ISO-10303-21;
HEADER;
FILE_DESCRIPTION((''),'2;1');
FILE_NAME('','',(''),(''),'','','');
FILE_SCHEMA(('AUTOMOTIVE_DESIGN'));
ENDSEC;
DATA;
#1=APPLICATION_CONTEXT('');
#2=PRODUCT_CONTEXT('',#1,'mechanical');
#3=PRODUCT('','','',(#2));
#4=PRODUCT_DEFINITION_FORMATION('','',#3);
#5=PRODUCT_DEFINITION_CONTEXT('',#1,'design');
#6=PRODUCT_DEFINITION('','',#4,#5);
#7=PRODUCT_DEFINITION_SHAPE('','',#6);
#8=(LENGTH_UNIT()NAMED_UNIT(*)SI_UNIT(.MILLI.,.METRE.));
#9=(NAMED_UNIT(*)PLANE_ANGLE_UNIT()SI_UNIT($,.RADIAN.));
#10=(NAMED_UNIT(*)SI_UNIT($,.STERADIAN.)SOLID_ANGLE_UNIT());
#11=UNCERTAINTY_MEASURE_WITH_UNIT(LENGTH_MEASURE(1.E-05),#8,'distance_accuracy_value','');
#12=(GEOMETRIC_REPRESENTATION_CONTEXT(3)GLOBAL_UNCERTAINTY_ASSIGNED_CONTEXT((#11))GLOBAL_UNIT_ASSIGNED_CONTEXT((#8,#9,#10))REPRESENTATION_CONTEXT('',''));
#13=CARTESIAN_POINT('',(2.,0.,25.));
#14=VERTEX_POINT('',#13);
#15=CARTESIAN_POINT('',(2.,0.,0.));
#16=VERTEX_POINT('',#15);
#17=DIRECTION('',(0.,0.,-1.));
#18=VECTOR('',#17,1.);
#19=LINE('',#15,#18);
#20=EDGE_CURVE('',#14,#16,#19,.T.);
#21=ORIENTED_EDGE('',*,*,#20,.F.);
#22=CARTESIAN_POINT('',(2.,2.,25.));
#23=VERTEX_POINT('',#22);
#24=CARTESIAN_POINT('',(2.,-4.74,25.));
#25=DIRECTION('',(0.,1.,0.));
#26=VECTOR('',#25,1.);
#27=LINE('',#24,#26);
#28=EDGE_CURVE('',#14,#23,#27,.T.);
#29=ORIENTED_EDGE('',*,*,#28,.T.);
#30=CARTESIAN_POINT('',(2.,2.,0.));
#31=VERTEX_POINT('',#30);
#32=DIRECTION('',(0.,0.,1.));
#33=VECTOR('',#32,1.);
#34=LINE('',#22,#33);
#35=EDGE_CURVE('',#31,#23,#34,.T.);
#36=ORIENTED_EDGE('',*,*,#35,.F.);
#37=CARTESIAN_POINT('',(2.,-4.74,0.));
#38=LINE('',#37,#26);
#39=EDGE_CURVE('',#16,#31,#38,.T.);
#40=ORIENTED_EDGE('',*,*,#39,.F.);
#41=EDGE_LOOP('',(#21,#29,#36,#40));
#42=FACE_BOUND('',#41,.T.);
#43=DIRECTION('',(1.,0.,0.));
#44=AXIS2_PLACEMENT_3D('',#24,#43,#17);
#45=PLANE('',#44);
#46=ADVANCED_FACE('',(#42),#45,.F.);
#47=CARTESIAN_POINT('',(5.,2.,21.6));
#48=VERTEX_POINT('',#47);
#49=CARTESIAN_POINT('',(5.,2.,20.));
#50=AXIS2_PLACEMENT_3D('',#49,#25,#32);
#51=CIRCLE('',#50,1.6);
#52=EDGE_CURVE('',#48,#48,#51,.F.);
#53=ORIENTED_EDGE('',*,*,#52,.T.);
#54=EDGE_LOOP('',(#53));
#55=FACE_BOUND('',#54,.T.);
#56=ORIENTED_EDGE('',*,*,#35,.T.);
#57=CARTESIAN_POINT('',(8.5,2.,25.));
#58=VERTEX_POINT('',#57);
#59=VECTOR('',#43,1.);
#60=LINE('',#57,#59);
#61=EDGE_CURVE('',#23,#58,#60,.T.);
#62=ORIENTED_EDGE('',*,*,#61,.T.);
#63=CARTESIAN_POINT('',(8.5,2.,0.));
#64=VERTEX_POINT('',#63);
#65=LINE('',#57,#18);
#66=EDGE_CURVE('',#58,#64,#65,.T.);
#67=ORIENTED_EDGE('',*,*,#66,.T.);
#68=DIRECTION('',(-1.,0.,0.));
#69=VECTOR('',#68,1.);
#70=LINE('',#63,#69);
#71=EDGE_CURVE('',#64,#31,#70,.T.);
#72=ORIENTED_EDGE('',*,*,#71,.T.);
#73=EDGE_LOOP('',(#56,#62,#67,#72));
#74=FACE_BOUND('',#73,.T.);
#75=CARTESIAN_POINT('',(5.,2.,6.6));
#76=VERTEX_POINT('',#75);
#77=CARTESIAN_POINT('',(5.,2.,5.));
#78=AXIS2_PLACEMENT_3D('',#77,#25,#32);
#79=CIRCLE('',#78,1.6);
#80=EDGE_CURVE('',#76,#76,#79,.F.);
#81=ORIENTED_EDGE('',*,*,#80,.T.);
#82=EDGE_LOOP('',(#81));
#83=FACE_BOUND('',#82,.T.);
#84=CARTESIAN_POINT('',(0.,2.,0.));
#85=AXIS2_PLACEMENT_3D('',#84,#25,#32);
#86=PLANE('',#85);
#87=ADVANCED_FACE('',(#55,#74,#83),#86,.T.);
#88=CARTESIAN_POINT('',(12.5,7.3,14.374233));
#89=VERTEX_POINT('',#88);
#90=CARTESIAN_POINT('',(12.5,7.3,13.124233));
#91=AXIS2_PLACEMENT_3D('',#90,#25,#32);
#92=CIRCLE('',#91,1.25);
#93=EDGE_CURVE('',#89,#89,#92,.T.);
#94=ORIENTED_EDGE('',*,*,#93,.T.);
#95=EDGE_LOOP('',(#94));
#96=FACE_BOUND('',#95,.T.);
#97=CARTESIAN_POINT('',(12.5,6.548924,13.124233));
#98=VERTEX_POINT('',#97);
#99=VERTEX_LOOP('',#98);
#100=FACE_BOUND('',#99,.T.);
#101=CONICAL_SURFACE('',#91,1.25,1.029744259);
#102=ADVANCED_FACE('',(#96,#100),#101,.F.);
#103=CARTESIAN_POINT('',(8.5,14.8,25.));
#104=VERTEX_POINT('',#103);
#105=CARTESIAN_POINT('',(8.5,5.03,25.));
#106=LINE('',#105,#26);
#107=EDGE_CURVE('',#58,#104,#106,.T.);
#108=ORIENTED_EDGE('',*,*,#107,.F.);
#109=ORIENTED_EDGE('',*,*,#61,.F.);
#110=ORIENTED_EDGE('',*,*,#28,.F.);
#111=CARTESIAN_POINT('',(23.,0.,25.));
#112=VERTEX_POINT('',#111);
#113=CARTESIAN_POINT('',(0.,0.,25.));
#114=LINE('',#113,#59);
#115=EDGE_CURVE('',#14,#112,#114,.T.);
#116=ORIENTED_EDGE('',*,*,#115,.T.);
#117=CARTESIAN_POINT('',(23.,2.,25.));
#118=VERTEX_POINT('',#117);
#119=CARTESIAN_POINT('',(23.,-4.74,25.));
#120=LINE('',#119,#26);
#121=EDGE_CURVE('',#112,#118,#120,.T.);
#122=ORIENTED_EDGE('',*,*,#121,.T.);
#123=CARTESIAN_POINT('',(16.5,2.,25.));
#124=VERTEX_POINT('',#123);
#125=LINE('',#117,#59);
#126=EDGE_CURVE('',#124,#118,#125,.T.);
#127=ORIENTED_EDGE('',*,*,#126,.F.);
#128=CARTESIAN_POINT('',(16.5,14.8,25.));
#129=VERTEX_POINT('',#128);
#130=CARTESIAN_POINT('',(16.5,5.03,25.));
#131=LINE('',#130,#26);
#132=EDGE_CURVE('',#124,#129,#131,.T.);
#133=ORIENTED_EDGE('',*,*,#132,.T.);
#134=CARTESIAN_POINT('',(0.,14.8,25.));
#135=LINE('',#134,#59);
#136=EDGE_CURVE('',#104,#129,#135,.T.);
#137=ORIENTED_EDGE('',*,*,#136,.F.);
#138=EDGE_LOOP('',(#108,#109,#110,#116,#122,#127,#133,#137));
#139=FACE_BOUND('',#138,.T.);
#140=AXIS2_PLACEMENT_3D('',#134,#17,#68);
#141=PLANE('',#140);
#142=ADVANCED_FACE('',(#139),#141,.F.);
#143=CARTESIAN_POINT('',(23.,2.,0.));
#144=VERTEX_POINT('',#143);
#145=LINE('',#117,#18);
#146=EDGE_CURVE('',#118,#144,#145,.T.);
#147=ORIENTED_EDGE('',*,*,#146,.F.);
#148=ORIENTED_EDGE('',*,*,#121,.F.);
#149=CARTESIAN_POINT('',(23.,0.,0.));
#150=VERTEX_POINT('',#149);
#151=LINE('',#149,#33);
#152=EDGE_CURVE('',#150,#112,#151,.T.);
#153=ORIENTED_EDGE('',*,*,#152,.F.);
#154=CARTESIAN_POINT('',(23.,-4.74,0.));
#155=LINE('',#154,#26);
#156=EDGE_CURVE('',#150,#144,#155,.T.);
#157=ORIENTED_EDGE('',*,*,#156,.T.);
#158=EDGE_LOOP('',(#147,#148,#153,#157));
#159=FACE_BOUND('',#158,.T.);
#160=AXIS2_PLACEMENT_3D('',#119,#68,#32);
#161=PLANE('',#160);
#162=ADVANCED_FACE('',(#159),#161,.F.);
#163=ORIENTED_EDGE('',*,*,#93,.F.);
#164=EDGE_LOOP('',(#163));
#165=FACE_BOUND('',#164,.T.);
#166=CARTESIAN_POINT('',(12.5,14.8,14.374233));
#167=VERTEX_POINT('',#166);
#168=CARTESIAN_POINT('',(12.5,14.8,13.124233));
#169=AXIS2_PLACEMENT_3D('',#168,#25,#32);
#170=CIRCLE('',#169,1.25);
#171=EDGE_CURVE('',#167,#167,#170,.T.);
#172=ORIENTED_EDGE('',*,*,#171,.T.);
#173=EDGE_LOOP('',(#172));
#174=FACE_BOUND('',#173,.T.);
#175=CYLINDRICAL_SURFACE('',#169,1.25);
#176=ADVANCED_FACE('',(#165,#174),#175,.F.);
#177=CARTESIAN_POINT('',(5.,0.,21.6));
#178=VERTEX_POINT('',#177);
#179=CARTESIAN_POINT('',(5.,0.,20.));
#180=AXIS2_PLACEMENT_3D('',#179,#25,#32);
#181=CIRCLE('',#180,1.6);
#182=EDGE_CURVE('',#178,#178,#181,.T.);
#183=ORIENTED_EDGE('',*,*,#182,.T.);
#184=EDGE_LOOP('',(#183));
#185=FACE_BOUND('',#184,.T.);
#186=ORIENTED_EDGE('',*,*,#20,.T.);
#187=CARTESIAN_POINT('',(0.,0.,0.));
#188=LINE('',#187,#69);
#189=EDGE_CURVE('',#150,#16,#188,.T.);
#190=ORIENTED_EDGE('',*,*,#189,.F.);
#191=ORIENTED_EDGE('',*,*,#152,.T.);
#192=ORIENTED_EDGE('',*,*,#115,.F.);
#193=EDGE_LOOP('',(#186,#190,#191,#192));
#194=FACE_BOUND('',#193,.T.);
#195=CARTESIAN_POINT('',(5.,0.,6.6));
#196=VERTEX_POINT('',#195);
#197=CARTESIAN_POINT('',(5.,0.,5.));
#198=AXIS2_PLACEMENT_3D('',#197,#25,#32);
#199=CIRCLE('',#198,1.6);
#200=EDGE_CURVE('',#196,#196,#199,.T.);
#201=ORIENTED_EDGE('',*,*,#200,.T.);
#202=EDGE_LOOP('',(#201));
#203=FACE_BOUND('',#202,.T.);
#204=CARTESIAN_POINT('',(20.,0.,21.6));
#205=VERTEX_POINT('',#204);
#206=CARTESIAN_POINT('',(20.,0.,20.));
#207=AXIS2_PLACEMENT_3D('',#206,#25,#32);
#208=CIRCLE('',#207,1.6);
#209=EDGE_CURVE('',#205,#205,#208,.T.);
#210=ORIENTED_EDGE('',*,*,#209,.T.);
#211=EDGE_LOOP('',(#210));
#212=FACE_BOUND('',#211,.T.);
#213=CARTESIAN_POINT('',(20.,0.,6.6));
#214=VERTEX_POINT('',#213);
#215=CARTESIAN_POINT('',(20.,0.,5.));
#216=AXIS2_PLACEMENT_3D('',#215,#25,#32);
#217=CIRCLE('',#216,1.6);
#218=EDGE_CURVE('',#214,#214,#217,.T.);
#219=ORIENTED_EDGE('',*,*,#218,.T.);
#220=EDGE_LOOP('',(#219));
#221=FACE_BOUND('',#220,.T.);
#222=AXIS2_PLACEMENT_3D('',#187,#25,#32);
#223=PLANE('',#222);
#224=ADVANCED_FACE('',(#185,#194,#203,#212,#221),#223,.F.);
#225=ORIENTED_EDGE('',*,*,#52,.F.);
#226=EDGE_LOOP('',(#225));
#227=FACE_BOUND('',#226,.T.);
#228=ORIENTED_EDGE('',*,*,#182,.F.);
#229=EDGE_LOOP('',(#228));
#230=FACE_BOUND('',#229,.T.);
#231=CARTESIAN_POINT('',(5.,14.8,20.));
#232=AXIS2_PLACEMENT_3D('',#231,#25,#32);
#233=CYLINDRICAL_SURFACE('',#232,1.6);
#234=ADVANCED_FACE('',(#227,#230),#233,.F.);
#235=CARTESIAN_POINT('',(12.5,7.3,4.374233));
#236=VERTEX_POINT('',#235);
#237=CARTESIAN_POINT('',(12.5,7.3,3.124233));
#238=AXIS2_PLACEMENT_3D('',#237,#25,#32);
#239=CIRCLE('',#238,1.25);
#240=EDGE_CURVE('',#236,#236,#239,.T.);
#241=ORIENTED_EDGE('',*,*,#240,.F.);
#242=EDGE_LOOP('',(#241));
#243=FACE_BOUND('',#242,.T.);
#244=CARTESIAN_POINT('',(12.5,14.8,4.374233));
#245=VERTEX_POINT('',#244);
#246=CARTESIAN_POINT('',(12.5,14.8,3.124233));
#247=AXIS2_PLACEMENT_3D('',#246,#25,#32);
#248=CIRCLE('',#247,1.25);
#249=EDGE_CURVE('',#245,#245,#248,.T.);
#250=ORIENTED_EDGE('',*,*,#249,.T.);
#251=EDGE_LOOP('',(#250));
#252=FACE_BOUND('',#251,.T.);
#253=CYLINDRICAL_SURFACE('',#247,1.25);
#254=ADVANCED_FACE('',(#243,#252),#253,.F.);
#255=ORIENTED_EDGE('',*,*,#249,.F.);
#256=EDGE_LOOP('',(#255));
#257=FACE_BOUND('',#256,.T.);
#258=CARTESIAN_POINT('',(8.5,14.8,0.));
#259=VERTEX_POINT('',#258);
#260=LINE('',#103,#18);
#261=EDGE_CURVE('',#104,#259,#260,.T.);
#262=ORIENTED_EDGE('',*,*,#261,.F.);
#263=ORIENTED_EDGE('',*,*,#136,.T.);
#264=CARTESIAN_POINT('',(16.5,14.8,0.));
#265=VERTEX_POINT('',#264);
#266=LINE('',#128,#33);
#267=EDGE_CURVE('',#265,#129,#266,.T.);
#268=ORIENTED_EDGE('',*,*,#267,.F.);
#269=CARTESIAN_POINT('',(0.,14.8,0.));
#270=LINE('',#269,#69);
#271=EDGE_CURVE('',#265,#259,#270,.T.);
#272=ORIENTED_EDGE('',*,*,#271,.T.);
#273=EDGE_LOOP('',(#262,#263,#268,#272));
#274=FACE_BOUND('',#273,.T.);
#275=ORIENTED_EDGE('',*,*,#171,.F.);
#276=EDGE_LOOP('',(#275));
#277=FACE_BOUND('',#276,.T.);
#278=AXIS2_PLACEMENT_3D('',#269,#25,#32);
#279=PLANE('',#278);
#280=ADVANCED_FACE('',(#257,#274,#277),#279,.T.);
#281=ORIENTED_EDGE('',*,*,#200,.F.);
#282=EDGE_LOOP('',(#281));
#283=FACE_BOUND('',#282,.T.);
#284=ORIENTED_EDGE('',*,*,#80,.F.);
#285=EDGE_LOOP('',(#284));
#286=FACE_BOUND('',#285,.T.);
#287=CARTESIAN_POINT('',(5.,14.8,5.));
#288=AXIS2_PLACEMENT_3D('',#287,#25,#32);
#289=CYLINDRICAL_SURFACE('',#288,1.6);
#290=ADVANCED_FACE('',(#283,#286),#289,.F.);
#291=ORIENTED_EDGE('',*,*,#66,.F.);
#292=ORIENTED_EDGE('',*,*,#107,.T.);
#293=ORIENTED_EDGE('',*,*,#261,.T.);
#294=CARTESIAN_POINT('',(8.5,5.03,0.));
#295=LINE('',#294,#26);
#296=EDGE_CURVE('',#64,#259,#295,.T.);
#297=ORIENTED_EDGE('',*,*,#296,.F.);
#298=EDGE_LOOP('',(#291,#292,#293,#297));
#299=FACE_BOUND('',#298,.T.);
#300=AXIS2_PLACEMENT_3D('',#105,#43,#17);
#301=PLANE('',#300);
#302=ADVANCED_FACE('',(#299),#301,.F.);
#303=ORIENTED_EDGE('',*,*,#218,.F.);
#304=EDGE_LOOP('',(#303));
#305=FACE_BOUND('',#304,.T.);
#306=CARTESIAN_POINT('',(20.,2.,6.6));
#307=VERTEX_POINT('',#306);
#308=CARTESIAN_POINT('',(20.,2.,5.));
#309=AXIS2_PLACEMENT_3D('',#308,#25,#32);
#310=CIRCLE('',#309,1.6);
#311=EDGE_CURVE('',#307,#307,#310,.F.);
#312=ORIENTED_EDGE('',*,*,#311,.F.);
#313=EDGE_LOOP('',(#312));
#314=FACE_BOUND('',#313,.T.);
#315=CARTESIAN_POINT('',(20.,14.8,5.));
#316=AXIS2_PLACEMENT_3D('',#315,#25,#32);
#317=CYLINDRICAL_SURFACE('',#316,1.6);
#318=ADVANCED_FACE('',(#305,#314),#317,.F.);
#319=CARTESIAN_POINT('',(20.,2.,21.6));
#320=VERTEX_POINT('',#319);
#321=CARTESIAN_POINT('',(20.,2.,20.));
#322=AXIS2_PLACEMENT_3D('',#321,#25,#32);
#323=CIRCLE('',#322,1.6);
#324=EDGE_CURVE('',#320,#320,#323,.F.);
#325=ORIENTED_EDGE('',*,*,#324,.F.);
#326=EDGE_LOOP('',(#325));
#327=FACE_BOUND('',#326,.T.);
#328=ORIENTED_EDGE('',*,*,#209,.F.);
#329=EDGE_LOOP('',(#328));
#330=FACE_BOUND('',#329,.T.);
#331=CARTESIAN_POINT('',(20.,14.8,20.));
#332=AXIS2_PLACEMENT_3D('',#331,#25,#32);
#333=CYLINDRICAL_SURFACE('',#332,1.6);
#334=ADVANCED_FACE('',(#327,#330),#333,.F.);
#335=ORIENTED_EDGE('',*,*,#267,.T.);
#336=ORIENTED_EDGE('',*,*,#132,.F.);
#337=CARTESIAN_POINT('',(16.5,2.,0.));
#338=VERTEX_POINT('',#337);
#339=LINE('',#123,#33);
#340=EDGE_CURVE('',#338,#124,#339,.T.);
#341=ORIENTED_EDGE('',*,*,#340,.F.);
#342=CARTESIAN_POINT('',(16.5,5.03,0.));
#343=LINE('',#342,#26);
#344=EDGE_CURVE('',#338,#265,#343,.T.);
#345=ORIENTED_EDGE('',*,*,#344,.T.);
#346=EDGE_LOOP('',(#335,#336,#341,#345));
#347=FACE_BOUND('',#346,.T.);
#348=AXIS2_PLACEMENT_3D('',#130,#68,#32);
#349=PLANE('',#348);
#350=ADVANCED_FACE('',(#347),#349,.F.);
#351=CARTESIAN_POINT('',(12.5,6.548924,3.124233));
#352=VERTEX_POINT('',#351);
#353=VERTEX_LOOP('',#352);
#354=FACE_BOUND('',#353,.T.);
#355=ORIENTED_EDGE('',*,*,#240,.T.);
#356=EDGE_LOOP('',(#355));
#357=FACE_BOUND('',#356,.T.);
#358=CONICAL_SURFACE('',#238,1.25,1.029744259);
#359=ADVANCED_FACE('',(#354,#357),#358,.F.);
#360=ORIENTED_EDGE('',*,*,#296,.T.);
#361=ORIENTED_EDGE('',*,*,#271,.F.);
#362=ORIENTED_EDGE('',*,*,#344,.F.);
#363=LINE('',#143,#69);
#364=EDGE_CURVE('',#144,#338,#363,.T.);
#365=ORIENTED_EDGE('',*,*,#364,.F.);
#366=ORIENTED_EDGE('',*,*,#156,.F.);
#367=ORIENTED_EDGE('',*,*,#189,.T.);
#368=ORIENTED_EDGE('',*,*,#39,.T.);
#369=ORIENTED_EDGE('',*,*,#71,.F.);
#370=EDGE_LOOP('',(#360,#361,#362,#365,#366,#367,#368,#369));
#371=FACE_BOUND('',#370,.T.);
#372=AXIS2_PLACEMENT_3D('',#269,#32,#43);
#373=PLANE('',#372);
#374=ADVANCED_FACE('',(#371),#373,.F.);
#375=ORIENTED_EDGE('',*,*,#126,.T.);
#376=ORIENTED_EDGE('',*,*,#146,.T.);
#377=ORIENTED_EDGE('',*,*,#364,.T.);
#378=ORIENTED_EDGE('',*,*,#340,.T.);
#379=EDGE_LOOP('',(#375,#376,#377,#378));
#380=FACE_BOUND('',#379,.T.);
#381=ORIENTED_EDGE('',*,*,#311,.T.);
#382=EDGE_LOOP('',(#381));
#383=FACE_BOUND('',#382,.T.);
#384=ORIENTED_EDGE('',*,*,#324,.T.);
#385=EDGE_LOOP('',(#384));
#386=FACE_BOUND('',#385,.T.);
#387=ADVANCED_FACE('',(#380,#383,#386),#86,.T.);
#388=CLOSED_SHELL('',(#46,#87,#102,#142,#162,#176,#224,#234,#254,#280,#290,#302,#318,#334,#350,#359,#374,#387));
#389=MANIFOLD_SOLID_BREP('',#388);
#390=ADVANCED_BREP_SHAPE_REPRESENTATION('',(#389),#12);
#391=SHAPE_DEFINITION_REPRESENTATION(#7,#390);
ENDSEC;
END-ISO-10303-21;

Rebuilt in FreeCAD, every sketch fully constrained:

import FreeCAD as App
import Part
import Sketcher

V = App.Vector
Q = App.Units.Quantity


def add_polygon(sketch, points):
    """Adds a closed chain of lines whose ends are joined by coincident constraints."""
    first, n = sketch.GeometryCount, len(points)
    for a, b in zip(points, points[1:] + points[:1]):
        sketch.addGeometry(Part.LineSegment(App.Vector(*a, 0), App.Vector(*b, 0)), False)
    for i in range(n):
        sketch.addConstraint(Sketcher.Constraint("Coincident", first + i, 2, first + (i + 1) % n, 1))

doc = App.newDocument("Part")
body = doc.addObject("PartDesign::Body", "Body")

sketch1 = doc.addObject("Sketcher::SketchObject", "Sketch")
body.addObject(sketch1)
sketch1.AttachmentSupport = (doc.XZ_Plane, [""])
sketch1.MapMode = "FlatFace"
add_polygon(sketch1, [(0, 0), (0, 25), (25, 25), (25, 0)])
sketch1.addConstraint([
    Sketcher.Constraint("Vertical", 0),
    Sketcher.Constraint("Horizontal", 1),
    Sketcher.Constraint("Vertical", 2),
    Sketcher.Constraint("Horizontal", 3),
    Sketcher.Constraint("Coincident", 3, 2, -1, 1),
    Sketcher.Constraint("Equal", 3, 0),
    Sketcher.Constraint("DistanceX", 1, 1, 1, 2, Q("25 mm")),
])
pad1 = doc.addObject("PartDesign::Pad", "Pad")
body.addObject(pad1)
pad1.Profile = sketch1
pad1.Length = 14.8
pad1.Reversed = True

sketch2 = doc.addObject("Sketcher::SketchObject", "Sketch001")
body.addObject(sketch2)
sketch2.AttachmentSupport = (doc.XZ_Plane, [""])
sketch2.MapMode = "FlatFace"
sketch2.AttachmentOffset = App.Placement(V(0, 0, -14.8), App.Rotation())
sketch2.addGeometry([
    Part.Circle(V(5, 5, 0), V(0, 0, 1), 1.6),
    Part.Circle(V(20, 5, 0), V(0, 0, 1), 1.6),
    Part.Circle(V(20, 20, 0), V(0, 0, 1), 1.6),
    Part.Circle(V(5, 20, 0), V(0, 0, 1), 1.6),
], False)
sketch2.addConstraint([
    Sketcher.Constraint("Equal", 0, 1),
    Sketcher.Constraint("Equal", 1, 2),
    Sketcher.Constraint("Equal", 2, 3),
    Sketcher.Constraint("Horizontal", 0, 3, 1, 3),
    Sketcher.Constraint("Horizontal", 2, 3, 3, 3),
    Sketcher.Constraint("Vertical", 1, 3, 2, 3),
    Sketcher.Constraint("Vertical", 0, 3, 3, 3),
    Sketcher.Constraint("Diameter", 0, Q("3.2 mm")),
    Sketcher.Constraint("DistanceX", -1, 1, 0, 3, Q("5 mm")),
    Sketcher.Constraint("DistanceY", -1, 1, 0, 3, Q("5 mm")),
    Sketcher.Constraint("DistanceX", -1, 1, 1, 3, Q("20 mm")),
    Sketcher.Constraint("DistanceY", -1, 1, 2, 3, Q("20 mm")),
])
doc.recompute()
hole = doc.addObject("PartDesign::Hole", "Hole")
body.addObject(hole)
hole.Profile = sketch2
hole.ThreadType = "None"
hole.Diameter = 3.2
hole.DepthType = "ThroughAll"
hole.Reversed = True

sketch3 = doc.addObject("Sketcher::SketchObject", "Sketch002")
body.addObject(sketch3)
sketch3.AttachmentSupport = (doc.XZ_Plane, [""])
sketch3.MapMode = "FlatFace"
sketch3.AttachmentOffset = App.Placement(V(0, 0, -14.8), App.Rotation())
sketch3.addGeometry([
    Part.Circle(V(12.5, 3.1, 0), V(0, 0, 1), 1.2),
    Part.Circle(V(12.5, 13.1, 0), V(0, 0, 1), 1.2),
], False)
sketch3.addConstraint([
    Sketcher.Constraint("Equal", 0, 1),
    Sketcher.Constraint("Vertical", 0, 3, 1, 3),
    Sketcher.Constraint("Diameter", 0, Q("2.5 mm")),
    Sketcher.Constraint("DistanceY", 0, 3, 1, 3, Q("10 mm")),
    Sketcher.Constraint("DistanceX", -1, 1, 0, 3, Q("12.5 mm")),
    Sketcher.Constraint("DistanceY", -1, 1, 0, 3, Q("3.124233 mm")),
])
doc.recompute()
hole2 = doc.addObject("PartDesign::Hole", "Hole001")
body.addObject(hole2)
hole2.Profile = sketch3
hole2.ThreadType = "None"
hole2.Diameter = 2.5
hole2.DepthType = "Dimension"
hole2.Depth = 7.5
hole2.DrillPoint = "Angled"
hole2.DrillPointAngle = 118
hole2.Reversed = True

sketch4 = doc.addObject("Sketcher::SketchObject", "Sketch003")
body.addObject(sketch4)
sketch4.AttachmentSupport = (doc.XZ_Plane, [""])
sketch4.MapMode = "FlatFace"
sketch4.AttachmentOffset = App.Placement(V(0, 0, -14.8), App.Rotation())
add_polygon(sketch4, [(0, 0), (0, 25), (8, 25), (8, 0)])
sketch4.addConstraint([
    Sketcher.Constraint("Vertical", 0),
    Sketcher.Constraint("Horizontal", 1),
    Sketcher.Constraint("Vertical", 2),
    Sketcher.Constraint("Horizontal", 3),
    Sketcher.Constraint("Coincident", 3, 2, -1, 1),
    Sketcher.Constraint("DistanceY", 0, 1, 0, 2, Q("25 mm")),
    Sketcher.Constraint("DistanceX", 1, 1, 1, 2, Q("8.5 mm")),
])
pocket1 = doc.addObject("PartDesign::Pocket", "Pocket")
body.addObject(pocket1)
pocket1.Profile = sketch4
pocket1.Length = 9.77
pocket1.Reversed = True

sketch5 = doc.addObject("Sketcher::SketchObject", "Sketch004")
body.addObject(sketch5)
sketch5.AttachmentSupport = (doc.XZ_Plane, [""])
sketch5.MapMode = "FlatFace"
sketch5.AttachmentOffset = App.Placement(V(0, 0, -14.8), App.Rotation())
add_polygon(sketch5, [(16, 0), (16, 25), (25, 25), (25, 0)])
sketch5.addConstraint([
    Sketcher.Constraint("Vertical", 0),
    Sketcher.Constraint("Horizontal", 1),
    Sketcher.Constraint("Vertical", 2),
    Sketcher.Constraint("Horizontal", 3),
    Sketcher.Constraint("PointOnObject", 2, 2, -1),
    Sketcher.Constraint("DistanceY", 0, 1, 0, 2, Q("25 mm")),
    Sketcher.Constraint("DistanceX", 1, 1, 1, 2, Q("8.5 mm")),
    Sketcher.Constraint("DistanceX", -1, 1, 1, 2, Q("25 mm")),
])
pocket2 = doc.addObject("PartDesign::Pocket", "Pocket001")
body.addObject(pocket2)
pocket2.Profile = sketch5
pocket2.Length = 9.77
pocket2.Reversed = True

sketch6 = doc.addObject("Sketcher::SketchObject", "Sketch005")
body.addObject(sketch6)
sketch6.AttachmentSupport = (doc.XZ_Plane, [""])
sketch6.MapMode = "FlatFace"
sketch6.AttachmentOffset = App.Placement(V(0, 0, -5.03), App.Rotation())
add_polygon(sketch6, [(0, 0), (0, 25), (2, 25), (2, 0)])
sketch6.addConstraint([
    Sketcher.Constraint("Vertical", 0),
    Sketcher.Constraint("Horizontal", 1),
    Sketcher.Constraint("Vertical", 2),
    Sketcher.Constraint("Horizontal", 3),
    Sketcher.Constraint("Coincident", 3, 2, -1, 1),
    Sketcher.Constraint("DistanceX", 1, 1, 1, 2, Q("2 mm")),
    Sketcher.Constraint("DistanceY", 0, 1, 0, 2, Q("25 mm")),
])
pocket3 = doc.addObject("PartDesign::Pocket", "Pocket002")
body.addObject(pocket3)
pocket3.Profile = sketch6
pocket3.Length = 9.77
pocket3.Reversed = True

sketch7 = doc.addObject("Sketcher::SketchObject", "Sketch006")
body.addObject(sketch7)
sketch7.AttachmentSupport = (doc.XZ_Plane, [""])
sketch7.MapMode = "FlatFace"
sketch7.AttachmentOffset = App.Placement(V(0, 0, -5.03), App.Rotation())
add_polygon(sketch7, [(23, 0), (23, 25), (25, 25), (25, 0)])
sketch7.addConstraint([
    Sketcher.Constraint("Vertical", 0),
    Sketcher.Constraint("Horizontal", 1),
    Sketcher.Constraint("Vertical", 2),
    Sketcher.Constraint("Horizontal", 3),
    Sketcher.Constraint("PointOnObject", 2, 2, -1),
    Sketcher.Constraint("DistanceX", 1, 1, 1, 2, Q("2 mm")),
    Sketcher.Constraint("DistanceY", 0, 1, 0, 2, Q("25 mm")),
    Sketcher.Constraint("DistanceX", -1, 1, 0, 2, Q("23 mm")),
])
pocket4 = doc.addObject("PartDesign::Pocket", "Pocket003")
body.addObject(pocket4)
pocket4.Profile = sketch7
pocket4.Length = 9.77
pocket4.Reversed = True

sketch8 = doc.addObject("Sketcher::SketchObject", "Sketch007")
body.addObject(sketch8)
sketch8.AttachmentSupport = (doc.XZ_Plane, [""])
sketch8.MapMode = "FlatFace"
sketch8.AttachmentOffset = App.Placement(V(0, 0, -5.03), App.Rotation())
add_polygon(sketch8, [(2, 0), (2, 25), (8, 25), (8, 0)])
sketch8.addConstraint([
    Sketcher.Constraint("Vertical", 0),
    Sketcher.Constraint("Horizontal", 1),
    Sketcher.Constraint("Vertical", 2),
    Sketcher.Constraint("Horizontal", 3),
    Sketcher.Constraint("PointOnObject", 2, 2, -1),
    Sketcher.Constraint("DistanceY", 0, 1, 0, 2, Q("25 mm")),
    Sketcher.Constraint("DistanceX", 1, 1, 1, 2, Q("6.5 mm")),
    Sketcher.Constraint("DistanceX", -1, 1, 0, 2, Q("2 mm")),
])
pocket5 = doc.addObject("PartDesign::Pocket", "Pocket004")
body.addObject(pocket5)
pocket5.Profile = sketch8
pocket5.Length = 3.03
pocket5.Reversed = True

sketch9 = doc.addObject("Sketcher::SketchObject", "Sketch008")
body.addObject(sketch9)
sketch9.AttachmentSupport = (doc.XZ_Plane, [""])
sketch9.MapMode = "FlatFace"
sketch9.AttachmentOffset = App.Placement(V(0, 0, -5.03), App.Rotation())
add_polygon(sketch9, [(16, 0), (16, 25), (23, 25), (23, 0)])
sketch9.addConstraint([
    Sketcher.Constraint("Vertical", 0),
    Sketcher.Constraint("Horizontal", 1),
    Sketcher.Constraint("Vertical", 2),
    Sketcher.Constraint("Horizontal", 3),
    Sketcher.Constraint("PointOnObject", 2, 2, -1),
    Sketcher.Constraint("DistanceY", 0, 1, 0, 2, Q("25 mm")),
    Sketcher.Constraint("DistanceX", 1, 1, 1, 2, Q("6.5 mm")),
    Sketcher.Constraint("DistanceX", -1, 1, 1, 2, Q("23 mm")),
])
pocket6 = doc.addObject("PartDesign::Pocket", "Pocket005")
body.addObject(pocket6)
pocket6.Profile = sketch9
pocket6.Length = 3.03
pocket6.Reversed = True

doc.recompute()
